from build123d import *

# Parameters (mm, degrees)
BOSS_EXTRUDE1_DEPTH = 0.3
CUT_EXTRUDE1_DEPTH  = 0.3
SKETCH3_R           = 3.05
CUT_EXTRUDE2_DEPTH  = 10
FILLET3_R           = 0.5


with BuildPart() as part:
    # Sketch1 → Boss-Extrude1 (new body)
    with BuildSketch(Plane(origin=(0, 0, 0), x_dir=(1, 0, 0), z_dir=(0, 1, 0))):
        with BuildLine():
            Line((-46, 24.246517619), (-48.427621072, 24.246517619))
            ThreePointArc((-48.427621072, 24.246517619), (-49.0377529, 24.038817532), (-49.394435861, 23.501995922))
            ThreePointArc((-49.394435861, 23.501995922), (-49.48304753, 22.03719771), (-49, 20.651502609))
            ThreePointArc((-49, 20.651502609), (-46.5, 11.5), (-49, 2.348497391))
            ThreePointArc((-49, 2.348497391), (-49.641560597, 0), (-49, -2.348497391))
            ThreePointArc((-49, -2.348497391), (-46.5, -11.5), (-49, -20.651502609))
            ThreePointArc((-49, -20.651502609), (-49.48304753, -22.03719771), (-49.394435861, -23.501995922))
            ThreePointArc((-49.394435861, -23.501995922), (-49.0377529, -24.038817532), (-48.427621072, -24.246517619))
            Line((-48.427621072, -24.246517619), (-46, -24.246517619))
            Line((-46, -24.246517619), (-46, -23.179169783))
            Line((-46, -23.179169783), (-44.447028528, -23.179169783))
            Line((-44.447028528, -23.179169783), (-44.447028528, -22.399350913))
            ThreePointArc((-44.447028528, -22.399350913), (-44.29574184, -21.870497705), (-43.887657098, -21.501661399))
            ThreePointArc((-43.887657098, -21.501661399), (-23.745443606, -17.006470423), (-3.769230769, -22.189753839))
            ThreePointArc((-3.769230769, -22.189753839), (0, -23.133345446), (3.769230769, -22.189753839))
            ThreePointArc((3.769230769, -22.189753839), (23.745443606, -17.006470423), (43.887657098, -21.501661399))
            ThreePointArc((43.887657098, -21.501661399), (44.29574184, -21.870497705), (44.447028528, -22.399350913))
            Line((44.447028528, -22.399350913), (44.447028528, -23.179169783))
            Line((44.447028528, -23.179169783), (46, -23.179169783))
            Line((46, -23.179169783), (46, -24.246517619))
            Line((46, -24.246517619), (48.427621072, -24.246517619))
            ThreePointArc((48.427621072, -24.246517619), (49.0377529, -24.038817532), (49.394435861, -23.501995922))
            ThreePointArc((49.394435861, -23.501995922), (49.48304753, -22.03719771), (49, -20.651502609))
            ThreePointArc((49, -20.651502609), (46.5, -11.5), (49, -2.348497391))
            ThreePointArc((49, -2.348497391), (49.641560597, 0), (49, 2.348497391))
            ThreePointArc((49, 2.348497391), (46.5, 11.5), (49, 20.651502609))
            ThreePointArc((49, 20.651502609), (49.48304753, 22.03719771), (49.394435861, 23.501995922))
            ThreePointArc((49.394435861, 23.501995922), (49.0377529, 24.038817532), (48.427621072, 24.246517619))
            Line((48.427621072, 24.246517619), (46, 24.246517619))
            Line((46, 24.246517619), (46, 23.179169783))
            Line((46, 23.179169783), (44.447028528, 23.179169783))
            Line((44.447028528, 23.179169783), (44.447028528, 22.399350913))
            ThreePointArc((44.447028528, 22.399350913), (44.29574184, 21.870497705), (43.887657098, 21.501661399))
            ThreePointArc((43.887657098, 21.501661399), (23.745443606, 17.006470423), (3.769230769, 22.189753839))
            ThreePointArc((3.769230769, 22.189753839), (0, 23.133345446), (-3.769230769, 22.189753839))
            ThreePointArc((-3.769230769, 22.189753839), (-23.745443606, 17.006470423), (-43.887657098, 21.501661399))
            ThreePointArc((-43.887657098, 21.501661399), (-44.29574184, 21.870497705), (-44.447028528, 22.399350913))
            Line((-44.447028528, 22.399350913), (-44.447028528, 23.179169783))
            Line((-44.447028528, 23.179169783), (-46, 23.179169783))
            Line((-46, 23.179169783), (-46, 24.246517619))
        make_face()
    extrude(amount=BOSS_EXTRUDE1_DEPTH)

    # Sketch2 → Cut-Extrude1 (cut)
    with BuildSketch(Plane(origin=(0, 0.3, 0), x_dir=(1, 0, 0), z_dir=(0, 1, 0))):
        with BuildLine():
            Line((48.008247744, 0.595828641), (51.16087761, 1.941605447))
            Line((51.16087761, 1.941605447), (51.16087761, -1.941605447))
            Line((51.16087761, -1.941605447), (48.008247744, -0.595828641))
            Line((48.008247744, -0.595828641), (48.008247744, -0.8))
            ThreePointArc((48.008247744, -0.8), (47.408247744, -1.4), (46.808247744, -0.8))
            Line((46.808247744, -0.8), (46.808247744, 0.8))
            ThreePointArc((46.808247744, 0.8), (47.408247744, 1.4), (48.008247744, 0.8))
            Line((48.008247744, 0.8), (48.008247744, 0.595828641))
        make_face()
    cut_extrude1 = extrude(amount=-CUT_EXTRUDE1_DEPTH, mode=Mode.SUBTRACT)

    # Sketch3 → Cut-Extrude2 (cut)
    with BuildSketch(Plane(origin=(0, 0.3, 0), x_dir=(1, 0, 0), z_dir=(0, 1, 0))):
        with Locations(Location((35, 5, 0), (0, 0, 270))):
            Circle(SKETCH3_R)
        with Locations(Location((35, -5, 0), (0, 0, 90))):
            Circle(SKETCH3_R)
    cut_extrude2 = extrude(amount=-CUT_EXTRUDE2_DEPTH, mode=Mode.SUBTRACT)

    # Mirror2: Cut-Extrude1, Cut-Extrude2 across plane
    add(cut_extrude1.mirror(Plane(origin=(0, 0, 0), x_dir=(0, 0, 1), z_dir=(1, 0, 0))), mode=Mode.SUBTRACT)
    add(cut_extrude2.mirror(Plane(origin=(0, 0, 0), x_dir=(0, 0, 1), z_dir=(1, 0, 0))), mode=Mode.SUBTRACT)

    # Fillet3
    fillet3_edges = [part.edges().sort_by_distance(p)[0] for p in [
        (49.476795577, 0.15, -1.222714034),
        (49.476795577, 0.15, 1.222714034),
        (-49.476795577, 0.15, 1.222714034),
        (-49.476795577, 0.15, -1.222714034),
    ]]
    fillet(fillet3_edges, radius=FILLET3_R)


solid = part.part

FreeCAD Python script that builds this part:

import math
import FreeCAD as App
import Part
import Sketcher

V = App.Vector


def edges_at(feature, points):
    """Names of the edges that pass closest to the given points."""
    edges = feature.Shape.Edges
    near = lambda p: min(range(len(edges)), key=lambda i: edges[i].distToShape(Part.Vertex(*p))[0])
    return sorted({f"Edge{near(p) + 1}" for p in points})

doc = App.newDocument("Part")
body = doc.addObject("PartDesign::Body", "Body")

sketch1 = doc.addObject("Sketcher::SketchObject", "Sketch")
body.addObject(sketch1)
sketch1.AttachmentSupport = (doc.XZ_Plane, [""])
sketch1.MapMode = "FlatFace"
sketch1.addGeometry([
    Part.LineSegment(V(-46, -24.2, 0), V(-48.4, -24.2, 0)),
    Part.ArcOfCircle(Part.Circle(V(-48.4, -23.2, 0), V(0, 0, 1), 1), math.radians(-165), math.radians(-90)),
    Part.ArcOfCircle(Part.Circle(V(-45.8, -22.5, 0), V(0, 0, 1), 3.7), math.radians(149), math.radians(195)),
    Part.ArcOfCircle(Part.Circle(V(-64.5, -11.5, 0), V(0, 0, 1), 18), math.radians(-31), math.radians(31)),
    Part.ArcOfCircle(Part.Circle(V(-45, 0, 0), V(0, 0, 1), 4.6), math.radians(149), math.radians(211)),
    Part.ArcOfCircle(Part.Circle(V(-64.5, 11.5, 0), V(0, 0, 1), 18), math.radians(-31), math.radians(31)),
    Part.ArcOfCircle(Part.Circle(V(-45.8, 22.5, 0), V(0, 0, 1), 3.7), math.radians(165), math.radians(211)),
    Part.ArcOfCircle(Part.Circle(V(-48.4, 23.2, 0), V(0, 0, 1), 1), math.radians(90), math.radians(165)),
    Part.LineSegment(V(-48.4, 24.2, 0), V(-46, 24.2, 0)),
    Part.LineSegment(V(-46, 24.2, 0), V(-46, 23.2, 0)),
    Part.LineSegment(V(-46, 23.2, 0), V(-44.4, 23.2, 0)),
    Part.LineSegment(V(-44.4, 23.2, 0), V(-44.4, 22.4, 0)),
    Part.ArcOfCircle(Part.Circle(V(-43.4, 22.4, 0), V(0, 0, 1), 1), math.radians(180), math.radians(244)),
    Part.ArcOfCircle(Part.Circle(V(-24.5, 61, 0), V(0, 0, 1), 44), math.radians(-116), math.radians(-62)),
    Part.ArcOfCircle(Part.Circle(V(0, 15.1, 0), V(0, 0, 1), 8), math.radians(62), math.radians(118)),
    Part.ArcOfCircle(Part.Circle(V(24.5, 61, 0), V(0, 0, 1), 44), math.radians(-118), math.radians(-64)),
    Part.ArcOfCircle(Part.Circle(V(43.4, 22.4, 0), V(0, 0, 1), 1), math.radians(-64), math.radians(0)),
    Part.LineSegment(V(44.4, 22.4, 0), V(44.4, 23.2, 0)),
    Part.LineSegment(V(44.4, 23.2, 0), V(46, 23.2, 0)),
    Part.LineSegment(V(46, 23.2, 0), V(46, 24.2, 0)),
    Part.LineSegment(V(46, 24.2, 0), V(48.4, 24.2, 0)),
    Part.ArcOfCircle(Part.Circle(V(48.4, 23.2, 0), V(0, 0, 1), 1), math.radians(15), math.radians(90)),
    Part.ArcOfCircle(Part.Circle(V(45.8, 22.5, 0), V(0, 0, 1), 3.7), math.radians(-31), math.radians(15)),
    Part.ArcOfCircle(Part.Circle(V(64.5, 11.5, 0), V(0, 0, 1), 18), math.radians(149), math.radians(211)),
    Part.ArcOfCircle(Part.Circle(V(45, 0, 0), V(0, 0, 1), 4.6), math.radians(-31), math.radians(31)),
    Part.ArcOfCircle(Part.Circle(V(64.5, -11.5, 0), V(0, 0, 1), 18), math.radians(149), math.radians(211)),
    Part.ArcOfCircle(Part.Circle(V(45.8, -22.5, 0), V(0, 0, 1), 3.7), math.radians(-15), math.radians(31)),
    Part.ArcOfCircle(Part.Circle(V(48.4, -23.2, 0), V(0, 0, 1), 1), math.radians(-90), math.radians(-15)),
    Part.LineSegment(V(48.4, -24.2, 0), V(46, -24.2, 0)),
    Part.LineSegment(V(46, -24.2, 0), V(46, -23.2, 0)),
    Part.LineSegment(V(46, -23.2, 0), V(44.4, -23.2, 0)),
    Part.LineSegment(V(44.4, -23.2, 0), V(44.4, -22.4, 0)),
    Part.ArcOfCircle(Part.Circle(V(43.4, -22.4, 0), V(0, 0, 1), 1), math.radians(0), math.radians(64)),
    Part.ArcOfCircle(Part.Circle(V(24.5, -61, 0), V(0, 0, 1), 44), math.radians(64), math.radians(118)),
    Part.ArcOfCircle(Part.Circle(V(0, -15.1, 0), V(0, 0, 1), 8), math.radians(-118), math.radians(-62)),
    Part.ArcOfCircle(Part.Circle(V(-24.5, -61, 0), V(0, 0, 1), 44), math.radians(62), math.radians(116)),
    Part.ArcOfCircle(Part.Circle(V(-43.4, -22.4, 0), V(0, 0, 1), 1), math.radians(116), math.radians(180)),
    Part.LineSegment(V(-44.4, -22.4, 0), V(-44.4, -23.2, 0)),
    Part.LineSegment(V(-44.4, -23.2, 0), V(-46, -23.2, 0)),
    Part.LineSegment(V(-46, -23.2, 0), V(-46, -24.2, 0)),
], False)
sketch1.addConstraint([
    Sketcher.Constraint("Tangent", 0, 2, 1, 2),
    Sketcher.Constraint("Tangent", 1, 1, 2, 2),
    Sketcher.Constraint("Tangent", 2, 1, 3, 1),
    Sketcher.Constraint("Tangent", 3, 2, 4, 2),
    Sketcher.Constraint("Tangent", 4, 1, 5, 1),
    Sketcher.Constraint("Tangent", 5, 2, 6, 2),
    Sketcher.Constraint("Tangent", 6, 1, 7, 2),
    Sketcher.Constraint("Tangent", 7, 1, 8, 1),
    Sketcher.Constraint("Coincident", 8, 2, 9, 1),
    Sketcher.Constraint("Coincident", 9, 2, 10, 1),
    Sketcher.Constraint("Coincident", 10, 2, 11, 1),
    Sketcher.Constraint("Tangent", 11, 2, 12, 1),
    Sketcher.Constraint("Tangent", 12, 2, 13, 1),
    Sketcher.Constraint("Tangent", 13, 2, 14, 2),
    Sketcher.Constraint("Tangent", 14, 1, 15, 1),
    Sketcher.Constraint("Tangent", 15, 2, 16, 1),
    Sketcher.Constraint("Tangent", 16, 2, 17, 1),
    Sketcher.Constraint("Coincident", 17, 2, 18, 1),
    Sketcher.Constraint("Coincident", 18, 2, 19, 1),
    Sketcher.Constraint("Coincident", 19, 2, 20, 1),
    Sketcher.Constraint("Tangent", 20, 2, 21, 2),
    Sketcher.Constraint("Tangent", 21, 1, 22, 2),
    Sketcher.Constraint("Tangent", 22, 1, 23, 1),
    Sketcher.Constraint("Tangent", 23, 2, 24, 2),
    Sketcher.Constraint("Tangent", 24, 1, 25, 1),
    Sketcher.Constraint("Tangent", 25, 2, 26, 2),
    Sketcher.Constraint("Tangent", 26, 1, 27, 2),
    Sketcher.Constraint("Tangent", 27, 1, 28, 1),
    Sketcher.Constraint("Coincident", 28, 2, 29, 1),
    Sketcher.Constraint("Coincident", 29, 2, 30, 1),
    Sketcher.Constraint("Coincident", 30, 2, 31, 1),
    Sketcher.Constraint("Tangent", 31, 2, 32, 1),
    Sketcher.Constraint("Tangent", 32, 2, 33, 1),
    Sketcher.Constraint("Tangent", 33, 2, 34, 2),
    Sketcher.Constraint("Tangent", 34, 1, 35, 1),
    Sketcher.Constraint("Tangent", 35, 2, 36, 1),
    Sketcher.Constraint("Tangent", 36, 2, 37, 1),
    Sketcher.Constraint("Coincident", 37, 2, 38, 1),
    Sketcher.Constraint("Coincident", 38, 2, 39, 1),
    Sketcher.Constraint("Coincident", 39, 2, 0, 1),
    Sketcher.Constraint("Horizontal", 0),
    Sketcher.Constraint("Horizontal", 8),
    Sketcher.Constraint("Vertical", 9),
    Sketcher.Constraint("Horizontal", 10),
    Sketcher.Constraint("Vertical", 11),
    Sketcher.Constraint("Vertical", 17),
    Sketcher.Constraint("Horizontal", 18),
    Sketcher.Constraint("Vertical", 19),
    Sketcher.Constraint("Horizontal", 20),
    Sketcher.Constraint("Horizontal", 28),
    Sketcher.Constraint("Vertical", 29),
    Sketcher.Constraint("Horizontal", 30),
    Sketcher.Constraint("Vertical", 31),
    Sketcher.Constraint("Vertical", 37),
    Sketcher.Constraint("Horizontal", 38),
    Sketcher.Constraint("Vertical", 39),
    Sketcher.Constraint("Equal", 3, 5),
    Sketcher.Constraint("Equal", 2, 6),
    Sketcher.Constraint("Equal", 1, 7),
    Sketcher.Constraint("Equal", 7, 12),
    Sketcher.Constraint("Equal", 13, 15),
    Sketcher.Constraint("Equal", 12, 16),
    Sketcher.Constraint("Equal", 16, 21),
    Sketcher.Constraint("Equal", 6, 22),
    Sketcher.Constraint("Equal", 5, 23),
    Sketcher.Constraint("Equal", 4, 24),
    Sketcher.Constraint("Equal", 23, 25),
    Sketcher.Constraint("Equal", 22, 26),
    Sketcher.Constraint("Equal", 21, 27),
    Sketcher.Constraint("Equal", 27, 32),
    Sketcher.Constraint("Equal", 15, 33),
    Sketcher.Constraint("Equal", 14, 34),
    Sketcher.Constraint("Equal", 33, 35),
    Sketcher.Constraint("Equal", 32, 36),
    Sketcher.Constraint("Symmetric", 1, 3, 21, 3, -1, 1),
    Sketcher.Constraint("Symmetric", 3, 3, 23, 3, -1, 1),
    Sketcher.Constraint("Symmetric", 5, 3, 25, 3, -1, 1),
    Sketcher.Constraint("Symmetric", 7, 3, 27, 3, -1, 1),
    Sketcher.Constraint("Symmetric", 12, 3, 32, 3, -1, 1),
    Sketcher.Constraint("Symmetric", 14, 3, 34, 3, -1, 1),
    Sketcher.Constraint("Symmetric", 16, 3, 36, 3, -1, 1),
    Sketcher.Constraint("Symmetric", 9, 2, 29, 2, -1, 1),
    Sketcher.Constraint("Symmetric", 18, 2, 38, 2, -1, 1),
    Sketcher.Constraint("Symmetric", 13, 3, 15, 3, -2),
    Sketcher.Constraint("Symmetric", 7, 3, 21, 3, -2),
    Sketcher.Constraint("Symmetric", 5, 3, 23, 3, -2),
    Sketcher.Constraint("Symmetric", 10, 2, 17, 2, -2),
    Sketcher.Constraint("Vertical", 2, 1, 3, 2),
    Sketcher.Constraint("Vertical", 19, 2, 28, 2),
    Sketcher.Constraint("Radius", 1, 1.0),
    Sketcher.Constraint("Radius", 3, 18.0),
    Sketcher.Constraint("Radius", 13, 44.0),
    Sketcher.Constraint("Radius", 14, 8.0),
    Sketcher.Constraint("DistanceY", -1, 1, 13, 3, 61.0),
    Sketcher.Constraint("DistanceX", 2, 1, -1, 1, 49.0),
    Sketcher.Constraint("DistanceX", 8, 2, -1, 1, 46.0),
    Sketcher.Constraint("DistanceX", 3, 3, -1, 1, 64.5),
    Sketcher.Constraint("DistanceY", 3, 3, -1, 1, 11.5),
    Sketcher.Constraint("DistanceX", 13, 3, -1, 1, 24.5),
    Sketcher.Constraint("Radius", 2, 3.731524),
    Sketcher.Constraint("DistanceX", 0, 2, 0, 1, 2.427621),
    Sketcher.Constraint("DistanceX", 10, 1, 10, 2, 1.552971),
    Sketcher.Constraint("DistanceY", 11, 2, 11, 1, 0.779819),
])
pad1 = doc.addObject("PartDesign::Pad", "Pad")
body.addObject(pad1)
pad1.Profile = sketch1
pad1.Length = 0.3
pad1.Reversed = True

sketch2 = doc.addObject("Sketcher::SketchObject", "Sketch001")
body.addObject(sketch2)
sketch2.AttachmentSupport = (doc.XZ_Plane, [""])
sketch2.MapMode = "FlatFace"
sketch2.AttachmentOffset = App.Placement(V(0, 0, -0.3), App.Rotation())
sketch2.addGeometry([
    Part.LineSegment(V(51.16, -1.94, 0), V(48.01, -0.6, 0)),
    Part.LineSegment(V(48.01, -0.6, 0), V(48.01, -0.8, 0)),
    Part.ArcOfCircle(Part.Circle(V(47.41, -0.8, 0), V(0, 0, 1), 0.6), math.radians(180), math.radians(360)),
    Part.LineSegment(V(46.81, -0.8, 0), V(46.81, 0.8, 0)),
    Part.ArcOfCircle(Part.Circle(V(47.41, 0.8, 0), V(0, 0, 1), 0.6), math.radians(0), math.radians(180)),
    Part.LineSegment(V(48.01, 0.8, 0), V(48.01, 0.6, 0)),
    Part.LineSegment(V(48.01, 0.6, 0), V(51.16, 1.94, 0)),
    Part.LineSegment(V(51.16, 1.94, 0), V(51.16, -1.94, 0)),
], False)
sketch2.addConstraint([
    Sketcher.Constraint("Coincident", 0, 2, 1, 1),
    Sketcher.Constraint("Tangent", 1, 2, 2, 2),
    Sketcher.Constraint("Tangent", 2, 1, 3, 1),
    Sketcher.Constraint("Tangent", 3, 2, 4, 2),
    Sketcher.Constraint("Tangent", 4, 1, 5, 1),
    Sketcher.Constraint("Coincident", 5, 2, 6, 1),
    Sketcher.Constraint("Coincident", 6, 2, 7, 1),
    Sketcher.Constraint("Coincident", 7, 2, 0, 1),
    Sketcher.Constraint("Vertical", 1),
    Sketcher.Constraint("Vertical", 3),
    Sketcher.Constraint("Vertical", 5),
    Sketcher.Constraint("Vertical", 7),
    Sketcher.Constraint("Equal", 2, 4),
    Sketcher.Constraint("Equal", 1, 5),
    Sketcher.Constraint("Equal", 0, 6),
    Sketcher.Constraint("Radius", 2, 0.6),
    Sketcher.Constraint("DistanceY", 3, 1, 3, 2, 1.6),
    Sketcher.Constraint("DistanceY", 2, 3, -1, 1, 0.8),
    Sketcher.Constraint("DistanceY", 1, 2, 1, 1, 0.204171),
    Sketcher.Constraint("DistanceY", 7, 2, 7, 1, 3.883211),
    Sketcher.Constraint("DistanceX", 4, 1, 6, 2, 3.15263),
    Sketcher.Constraint("DistanceX", -1, 1, 2, 3, 47.408248),
])
pocket1 = doc.addObject("PartDesign::Pocket", "Pocket")
body.addObject(pocket1)
pocket1.Profile = sketch2
pocket1.Length = 0.3
pocket1.Reversed = True

sketch3 = doc.addObject("Sketcher::SketchObject", "Sketch002")
body.addObject(sketch3)
sketch3.AttachmentSupport = (doc.XZ_Plane, [""])
sketch3.MapMode = "FlatFace"
sketch3.AttachmentOffset = App.Placement(V(0, 0, -0.3), App.Rotation())
sketch3.addGeometry([
    Part.Circle(V(35, -5, 0), V(0, 0, 1), 3),
    Part.Circle(V(35, 5, 0), V(0, 0, 1), 3),
], False)
sketch3.addConstraint([
    Sketcher.Constraint("Equal", 0, 1),
    Sketcher.Constraint("Symmetric", 0, 3, 1, 3, -1),
    Sketcher.Constraint("Diameter", 0, 6.1),
    Sketcher.Constraint("DistanceX", -1, 1, 0, 3, 35.0),
    Sketcher.Constraint("DistanceY", 0, 3, -1, 1, 5.0),
])
pocket2 = doc.addObject("PartDesign::Pocket", "Pocket001")
body.addObject(pocket2)
pocket2.Profile = sketch3
pocket2.Length = 10
pocket2.Reversed = True
doc.recompute()

mirrored = doc.addObject("PartDesign::Mirrored", "Mirrored")
body.addObject(mirrored)
mirrored.Originals = [pocket1, pocket2]
mirrored.MirrorPlane = (doc.YZ_Plane, [""])
body.Tip = mirrored
doc.recompute()

fillet = doc.addObject("PartDesign::Fillet", "Fillet")
body.addObject(fillet)
fillet.Base = (mirrored, edges_at(mirrored, [
    (49.477, 0.15, -1.223),
    (49.477, 0.15, 1.223),
    (-49.477, 0.15, 1.223),
    (-49.477, 0.15, -1.223),
]))
fillet.Radius = 0.5

doc.recompute()
